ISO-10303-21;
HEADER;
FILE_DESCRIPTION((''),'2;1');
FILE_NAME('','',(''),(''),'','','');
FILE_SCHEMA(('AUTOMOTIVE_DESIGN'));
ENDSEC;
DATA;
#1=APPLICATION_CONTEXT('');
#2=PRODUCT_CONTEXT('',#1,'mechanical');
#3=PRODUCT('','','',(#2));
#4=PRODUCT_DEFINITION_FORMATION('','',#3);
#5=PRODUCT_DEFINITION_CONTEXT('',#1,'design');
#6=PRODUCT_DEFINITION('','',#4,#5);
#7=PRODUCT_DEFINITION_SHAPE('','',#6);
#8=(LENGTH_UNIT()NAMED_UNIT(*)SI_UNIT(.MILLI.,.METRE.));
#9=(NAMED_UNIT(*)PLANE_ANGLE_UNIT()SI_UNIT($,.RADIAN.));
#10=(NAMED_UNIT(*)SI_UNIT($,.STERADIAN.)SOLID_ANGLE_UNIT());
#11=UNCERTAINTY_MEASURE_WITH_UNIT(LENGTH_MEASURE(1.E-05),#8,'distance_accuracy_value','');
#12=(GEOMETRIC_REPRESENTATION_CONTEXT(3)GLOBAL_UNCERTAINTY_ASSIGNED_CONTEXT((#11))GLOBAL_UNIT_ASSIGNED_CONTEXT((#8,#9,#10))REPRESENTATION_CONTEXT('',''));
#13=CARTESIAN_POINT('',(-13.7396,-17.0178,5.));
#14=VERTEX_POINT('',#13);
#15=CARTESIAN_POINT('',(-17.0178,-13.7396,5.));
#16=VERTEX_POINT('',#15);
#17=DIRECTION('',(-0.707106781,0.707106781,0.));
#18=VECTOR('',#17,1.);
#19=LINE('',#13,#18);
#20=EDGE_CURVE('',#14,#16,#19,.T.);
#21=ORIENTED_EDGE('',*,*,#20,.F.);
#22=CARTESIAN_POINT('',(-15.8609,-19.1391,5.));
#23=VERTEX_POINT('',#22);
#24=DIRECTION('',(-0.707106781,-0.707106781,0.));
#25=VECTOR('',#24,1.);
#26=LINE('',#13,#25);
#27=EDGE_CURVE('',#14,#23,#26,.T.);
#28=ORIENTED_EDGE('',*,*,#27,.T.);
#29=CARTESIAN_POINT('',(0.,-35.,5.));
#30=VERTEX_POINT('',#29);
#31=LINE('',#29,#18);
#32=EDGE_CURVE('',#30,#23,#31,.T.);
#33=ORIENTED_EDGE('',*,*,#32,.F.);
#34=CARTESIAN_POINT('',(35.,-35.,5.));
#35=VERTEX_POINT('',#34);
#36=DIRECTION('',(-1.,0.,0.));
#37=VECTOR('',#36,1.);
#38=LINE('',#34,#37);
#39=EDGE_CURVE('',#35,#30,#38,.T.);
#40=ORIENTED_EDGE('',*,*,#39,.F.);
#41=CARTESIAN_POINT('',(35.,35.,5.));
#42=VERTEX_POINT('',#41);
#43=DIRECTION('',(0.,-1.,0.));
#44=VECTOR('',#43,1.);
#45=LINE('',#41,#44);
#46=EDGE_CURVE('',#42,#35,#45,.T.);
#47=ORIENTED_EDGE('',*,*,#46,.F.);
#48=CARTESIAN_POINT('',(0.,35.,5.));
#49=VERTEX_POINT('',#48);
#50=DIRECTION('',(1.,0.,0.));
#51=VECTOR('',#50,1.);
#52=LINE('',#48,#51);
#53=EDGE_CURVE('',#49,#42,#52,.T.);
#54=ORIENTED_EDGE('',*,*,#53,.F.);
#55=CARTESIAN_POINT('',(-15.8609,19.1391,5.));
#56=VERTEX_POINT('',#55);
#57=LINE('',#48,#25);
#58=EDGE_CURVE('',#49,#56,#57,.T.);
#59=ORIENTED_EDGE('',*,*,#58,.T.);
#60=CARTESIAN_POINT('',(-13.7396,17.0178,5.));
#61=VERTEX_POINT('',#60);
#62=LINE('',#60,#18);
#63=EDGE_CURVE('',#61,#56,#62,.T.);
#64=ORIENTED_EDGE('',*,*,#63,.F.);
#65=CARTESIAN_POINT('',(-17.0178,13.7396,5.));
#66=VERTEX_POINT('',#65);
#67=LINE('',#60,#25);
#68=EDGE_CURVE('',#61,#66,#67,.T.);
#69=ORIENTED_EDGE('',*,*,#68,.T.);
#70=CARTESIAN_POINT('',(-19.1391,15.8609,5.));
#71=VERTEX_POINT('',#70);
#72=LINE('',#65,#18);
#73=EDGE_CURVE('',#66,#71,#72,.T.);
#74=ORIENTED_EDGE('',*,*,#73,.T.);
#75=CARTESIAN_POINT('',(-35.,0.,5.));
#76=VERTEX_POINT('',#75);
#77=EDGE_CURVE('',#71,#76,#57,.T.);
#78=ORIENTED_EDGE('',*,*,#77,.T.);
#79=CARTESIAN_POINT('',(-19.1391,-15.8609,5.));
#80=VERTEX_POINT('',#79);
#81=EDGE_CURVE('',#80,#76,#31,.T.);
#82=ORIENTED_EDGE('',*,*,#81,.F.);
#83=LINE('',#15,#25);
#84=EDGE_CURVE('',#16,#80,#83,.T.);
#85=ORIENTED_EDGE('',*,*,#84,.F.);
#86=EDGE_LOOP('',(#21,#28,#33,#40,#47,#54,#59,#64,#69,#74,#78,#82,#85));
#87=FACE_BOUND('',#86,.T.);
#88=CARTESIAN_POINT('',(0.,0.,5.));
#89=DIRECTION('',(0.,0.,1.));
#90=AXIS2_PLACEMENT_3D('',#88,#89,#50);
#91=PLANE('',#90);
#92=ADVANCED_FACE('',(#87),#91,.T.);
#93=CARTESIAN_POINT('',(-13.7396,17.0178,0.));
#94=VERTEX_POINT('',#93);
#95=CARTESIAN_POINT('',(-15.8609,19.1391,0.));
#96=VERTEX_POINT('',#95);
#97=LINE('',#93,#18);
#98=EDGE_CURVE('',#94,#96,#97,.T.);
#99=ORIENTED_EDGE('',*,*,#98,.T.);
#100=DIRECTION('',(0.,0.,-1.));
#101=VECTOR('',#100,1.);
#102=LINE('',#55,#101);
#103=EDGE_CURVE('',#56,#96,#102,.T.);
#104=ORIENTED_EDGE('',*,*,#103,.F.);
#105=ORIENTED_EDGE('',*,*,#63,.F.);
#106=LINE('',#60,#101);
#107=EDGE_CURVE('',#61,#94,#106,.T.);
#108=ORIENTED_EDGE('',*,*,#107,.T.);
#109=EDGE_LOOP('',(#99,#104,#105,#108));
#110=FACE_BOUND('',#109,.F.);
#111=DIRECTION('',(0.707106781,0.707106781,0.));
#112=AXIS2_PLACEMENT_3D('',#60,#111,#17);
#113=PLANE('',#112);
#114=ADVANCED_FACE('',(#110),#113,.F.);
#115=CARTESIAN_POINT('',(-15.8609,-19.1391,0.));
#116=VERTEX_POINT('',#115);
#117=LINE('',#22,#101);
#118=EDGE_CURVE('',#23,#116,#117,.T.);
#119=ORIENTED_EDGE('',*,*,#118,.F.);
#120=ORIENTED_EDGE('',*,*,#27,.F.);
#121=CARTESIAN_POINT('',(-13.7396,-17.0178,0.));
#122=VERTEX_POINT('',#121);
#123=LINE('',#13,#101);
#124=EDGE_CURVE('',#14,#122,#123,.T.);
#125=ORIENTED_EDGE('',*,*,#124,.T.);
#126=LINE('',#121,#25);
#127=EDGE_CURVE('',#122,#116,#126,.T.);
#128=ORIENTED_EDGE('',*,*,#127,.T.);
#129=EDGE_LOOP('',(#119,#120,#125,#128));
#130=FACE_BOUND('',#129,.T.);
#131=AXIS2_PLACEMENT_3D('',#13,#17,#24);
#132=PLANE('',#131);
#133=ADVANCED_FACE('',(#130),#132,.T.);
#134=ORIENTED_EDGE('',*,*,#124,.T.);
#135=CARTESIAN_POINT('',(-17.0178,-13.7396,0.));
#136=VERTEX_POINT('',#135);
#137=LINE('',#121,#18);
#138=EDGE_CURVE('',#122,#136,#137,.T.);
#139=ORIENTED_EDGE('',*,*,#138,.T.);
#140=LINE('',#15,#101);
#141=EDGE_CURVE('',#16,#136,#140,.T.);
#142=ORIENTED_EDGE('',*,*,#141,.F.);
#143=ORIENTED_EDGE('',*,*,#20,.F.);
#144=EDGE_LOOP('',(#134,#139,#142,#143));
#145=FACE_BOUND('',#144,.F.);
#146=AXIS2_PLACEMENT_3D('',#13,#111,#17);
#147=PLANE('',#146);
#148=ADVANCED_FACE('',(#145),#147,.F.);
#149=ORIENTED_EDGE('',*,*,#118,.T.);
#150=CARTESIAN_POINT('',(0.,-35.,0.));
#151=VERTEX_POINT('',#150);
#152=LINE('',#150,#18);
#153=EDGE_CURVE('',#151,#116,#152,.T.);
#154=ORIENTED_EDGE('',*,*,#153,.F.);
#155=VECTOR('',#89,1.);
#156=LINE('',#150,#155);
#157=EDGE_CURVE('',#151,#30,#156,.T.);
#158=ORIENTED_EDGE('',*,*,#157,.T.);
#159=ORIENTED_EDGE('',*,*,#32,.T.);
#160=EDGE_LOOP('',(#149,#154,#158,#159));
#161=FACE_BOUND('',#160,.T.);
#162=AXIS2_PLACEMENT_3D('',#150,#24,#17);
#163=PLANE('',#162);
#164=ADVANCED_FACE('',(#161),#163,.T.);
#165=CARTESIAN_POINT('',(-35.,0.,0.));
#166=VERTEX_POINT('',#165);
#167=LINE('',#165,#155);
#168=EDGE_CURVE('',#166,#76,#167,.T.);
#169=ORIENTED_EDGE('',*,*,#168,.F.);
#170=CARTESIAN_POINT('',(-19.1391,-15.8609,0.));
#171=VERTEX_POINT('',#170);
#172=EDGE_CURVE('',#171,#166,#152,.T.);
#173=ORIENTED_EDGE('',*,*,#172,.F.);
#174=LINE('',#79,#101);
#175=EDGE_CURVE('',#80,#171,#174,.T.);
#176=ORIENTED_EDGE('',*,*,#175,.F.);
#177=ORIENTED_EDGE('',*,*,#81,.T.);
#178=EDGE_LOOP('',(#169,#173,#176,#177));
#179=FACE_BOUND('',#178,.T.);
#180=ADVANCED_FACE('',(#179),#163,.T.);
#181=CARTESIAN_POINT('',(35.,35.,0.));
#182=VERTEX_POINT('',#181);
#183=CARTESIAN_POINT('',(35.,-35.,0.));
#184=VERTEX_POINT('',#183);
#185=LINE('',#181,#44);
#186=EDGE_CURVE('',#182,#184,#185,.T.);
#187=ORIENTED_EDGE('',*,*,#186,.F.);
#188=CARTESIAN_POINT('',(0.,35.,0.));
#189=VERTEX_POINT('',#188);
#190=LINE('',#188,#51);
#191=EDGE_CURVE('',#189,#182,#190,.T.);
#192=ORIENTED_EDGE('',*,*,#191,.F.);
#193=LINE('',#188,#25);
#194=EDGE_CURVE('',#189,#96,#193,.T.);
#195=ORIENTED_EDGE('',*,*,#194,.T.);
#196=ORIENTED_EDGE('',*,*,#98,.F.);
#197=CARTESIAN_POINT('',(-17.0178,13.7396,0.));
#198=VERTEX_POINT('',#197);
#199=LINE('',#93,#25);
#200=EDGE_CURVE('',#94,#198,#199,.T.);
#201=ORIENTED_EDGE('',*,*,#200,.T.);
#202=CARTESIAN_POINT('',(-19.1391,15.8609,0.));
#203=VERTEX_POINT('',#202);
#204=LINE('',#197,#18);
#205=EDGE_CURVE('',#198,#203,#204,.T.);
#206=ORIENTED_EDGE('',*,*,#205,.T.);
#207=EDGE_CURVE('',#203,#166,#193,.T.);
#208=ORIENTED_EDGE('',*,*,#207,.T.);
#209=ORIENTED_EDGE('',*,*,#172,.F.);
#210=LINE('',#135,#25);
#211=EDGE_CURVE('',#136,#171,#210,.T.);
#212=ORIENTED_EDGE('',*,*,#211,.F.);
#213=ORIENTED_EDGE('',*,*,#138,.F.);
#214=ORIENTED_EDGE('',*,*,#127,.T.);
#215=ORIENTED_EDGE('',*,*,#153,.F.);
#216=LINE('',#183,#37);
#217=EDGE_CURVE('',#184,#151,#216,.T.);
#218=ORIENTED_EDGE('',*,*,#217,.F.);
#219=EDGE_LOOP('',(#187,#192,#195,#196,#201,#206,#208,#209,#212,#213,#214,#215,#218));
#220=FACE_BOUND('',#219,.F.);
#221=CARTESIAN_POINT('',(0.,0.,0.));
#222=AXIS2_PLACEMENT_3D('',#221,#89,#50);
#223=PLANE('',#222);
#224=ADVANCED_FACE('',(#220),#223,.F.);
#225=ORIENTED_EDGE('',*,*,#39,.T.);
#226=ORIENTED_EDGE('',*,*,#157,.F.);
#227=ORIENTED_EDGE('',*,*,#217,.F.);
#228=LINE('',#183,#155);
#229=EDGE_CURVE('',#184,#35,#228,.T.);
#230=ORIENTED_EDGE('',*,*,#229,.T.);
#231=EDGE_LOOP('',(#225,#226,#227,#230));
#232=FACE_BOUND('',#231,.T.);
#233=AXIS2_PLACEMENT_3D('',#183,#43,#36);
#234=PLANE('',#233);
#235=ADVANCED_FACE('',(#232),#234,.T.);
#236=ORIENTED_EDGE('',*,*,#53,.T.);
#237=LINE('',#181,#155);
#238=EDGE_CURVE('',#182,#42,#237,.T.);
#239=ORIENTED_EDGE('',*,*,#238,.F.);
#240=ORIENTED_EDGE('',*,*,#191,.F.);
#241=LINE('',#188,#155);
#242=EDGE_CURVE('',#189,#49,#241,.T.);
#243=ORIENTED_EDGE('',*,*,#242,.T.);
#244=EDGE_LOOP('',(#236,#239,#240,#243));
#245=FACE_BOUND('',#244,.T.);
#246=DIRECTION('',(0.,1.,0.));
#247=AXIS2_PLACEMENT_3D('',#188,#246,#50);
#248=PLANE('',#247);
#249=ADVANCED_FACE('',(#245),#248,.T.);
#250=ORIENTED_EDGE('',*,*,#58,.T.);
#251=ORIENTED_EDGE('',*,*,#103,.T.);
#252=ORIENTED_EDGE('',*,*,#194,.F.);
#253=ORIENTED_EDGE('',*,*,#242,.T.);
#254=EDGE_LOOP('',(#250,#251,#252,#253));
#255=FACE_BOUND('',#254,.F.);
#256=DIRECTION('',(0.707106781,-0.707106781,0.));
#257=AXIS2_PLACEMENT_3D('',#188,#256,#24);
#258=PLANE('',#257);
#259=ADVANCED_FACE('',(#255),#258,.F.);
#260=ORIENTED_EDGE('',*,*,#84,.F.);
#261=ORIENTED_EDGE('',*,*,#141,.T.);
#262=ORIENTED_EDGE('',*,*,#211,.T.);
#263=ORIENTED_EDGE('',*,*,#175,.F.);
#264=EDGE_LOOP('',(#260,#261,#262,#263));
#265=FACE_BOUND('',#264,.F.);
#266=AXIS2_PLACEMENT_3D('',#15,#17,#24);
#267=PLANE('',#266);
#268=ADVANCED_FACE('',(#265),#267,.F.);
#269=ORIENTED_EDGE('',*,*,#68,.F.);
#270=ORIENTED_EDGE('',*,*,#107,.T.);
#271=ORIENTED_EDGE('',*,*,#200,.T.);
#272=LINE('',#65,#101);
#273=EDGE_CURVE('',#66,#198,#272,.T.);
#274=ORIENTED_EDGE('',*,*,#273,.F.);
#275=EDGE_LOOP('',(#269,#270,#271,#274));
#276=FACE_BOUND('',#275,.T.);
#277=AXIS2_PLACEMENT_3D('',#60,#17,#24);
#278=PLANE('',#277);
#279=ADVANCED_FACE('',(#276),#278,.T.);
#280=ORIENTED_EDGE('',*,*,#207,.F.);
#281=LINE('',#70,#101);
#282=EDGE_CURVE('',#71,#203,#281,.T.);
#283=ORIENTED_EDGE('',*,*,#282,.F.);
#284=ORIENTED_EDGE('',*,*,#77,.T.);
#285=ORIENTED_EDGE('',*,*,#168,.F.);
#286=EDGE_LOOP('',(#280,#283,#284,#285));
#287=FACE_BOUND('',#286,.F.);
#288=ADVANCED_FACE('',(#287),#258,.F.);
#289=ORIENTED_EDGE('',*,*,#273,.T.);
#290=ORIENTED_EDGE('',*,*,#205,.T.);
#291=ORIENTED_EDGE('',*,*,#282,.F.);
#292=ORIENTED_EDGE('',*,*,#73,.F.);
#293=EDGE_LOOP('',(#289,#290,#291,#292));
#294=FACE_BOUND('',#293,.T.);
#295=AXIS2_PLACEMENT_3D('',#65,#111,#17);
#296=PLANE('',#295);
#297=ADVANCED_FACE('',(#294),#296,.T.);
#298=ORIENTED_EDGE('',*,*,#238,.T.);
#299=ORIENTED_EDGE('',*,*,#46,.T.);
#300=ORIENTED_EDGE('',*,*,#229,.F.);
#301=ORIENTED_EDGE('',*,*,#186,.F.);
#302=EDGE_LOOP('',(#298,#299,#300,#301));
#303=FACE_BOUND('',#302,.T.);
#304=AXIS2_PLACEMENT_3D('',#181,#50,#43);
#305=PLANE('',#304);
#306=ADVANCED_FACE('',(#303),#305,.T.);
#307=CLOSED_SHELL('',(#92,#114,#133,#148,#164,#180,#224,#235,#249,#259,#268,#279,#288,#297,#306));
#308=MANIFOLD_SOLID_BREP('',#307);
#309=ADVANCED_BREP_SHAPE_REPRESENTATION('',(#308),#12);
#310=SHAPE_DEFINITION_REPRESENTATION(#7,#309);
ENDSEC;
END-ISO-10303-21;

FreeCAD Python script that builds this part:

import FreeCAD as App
import Part
import Sketcher
from FreeCAD import Vector


def add_polygon(sketch, points):
    """Adds a closed chain of lines whose ends are joined by coincident constraints."""
    first, n = sketch.GeometryCount, len(points)
    for a, b in zip(points, points[1:] + points[:1]):
        sketch.addGeometry(Part.LineSegment(App.Vector(*a, 0), App.Vector(*b, 0)), False)
    for i in range(n):
        sketch.addConstraint(Sketcher.Constraint("Coincident", first + i, 2, first + (i + 1) % n, 1))

doc = App.newDocument("Part")
body = doc.addObject("PartDesign::Body", "Body")

# Sketch on XY plane
sketch1 = body.newObject("Sketcher::SketchObject", "Sketch")
sketch1.AttachmentSupport = (doc.getObject("XY_Plane"), [""])
sketch1.MapMode = "FlatFace"
add_polygon(sketch1, [(35, 35), (0, 35), (-35, 0), (0, -35), (35, -35)])  # lines 0-4
sketch1.addConstraint(Sketcher.Constraint("Horizontal", 0))
sketch1.addConstraint(Sketcher.Constraint("Horizontal", 3))
sketch1.addConstraint(Sketcher.Constraint("Vertical", 4))
sketch1.addConstraint(Sketcher.Constraint("Symmetric", 0, 2, 2, 2, -1, 1))
sketch1.addConstraint(Sketcher.Constraint("PointOnObject", 0, 2, -2))
sketch1.addConstraint(Sketcher.Constraint("PointOnObject", 1, 2, -1))
sketch1.addConstraint(Sketcher.Constraint("Perpendicular", 1, 2))
sketch1.addConstraint(Sketcher.Constraint("DistanceY", 4, 1, 4, 2, 70.0))
sketch1.addConstraint(Sketcher.Constraint("DistanceX", 1, 2, 3, 2, 70.0))
pad1 = body.newObject("PartDesign::Pad", "Pad")
pad1.Profile = sketch1
pad1.Length = 5

# Sketch on XY plane
sketch2 = body.newObject("Sketcher::SketchObject", "Sketch001")
sketch2.AttachmentSupport = (doc.getObject("XY_Plane"), [""])
sketch2.MapMode = "FlatFace"
sketch2.AttachmentOffset = App.Placement(Vector(0, 0, 5), App.Rotation())
add_polygon(sketch2, [(-13.7, 17), (-15.9, 19.1), (-19.1, 15.9), (-17, 13.7)])  # lines 0-3
add_polygon(sketch2, [(-17, -13.7), (-19.1, -15.9), (-15.9, -19.1), (-13.7, -17)])  # lines 4-7
sketch2.addConstraint(Sketcher.Constraint("Symmetric", 1, 2, 4, 2, -1))
sketch2.addConstraint(Sketcher.Constraint("Symmetric", 0, 2, 5, 2, -1))
sketch2.addConstraint(Sketcher.Constraint("Symmetric", 3, 2, 6, 2, -1))
sketch2.addConstraint(Sketcher.Constraint("Symmetric", 2, 2, 7, 2, -1))
sketch2.addConstraint(Sketcher.Constraint("Perpendicular", 0, 1))
sketch2.addConstraint(Sketcher.Constraint("Perpendicular", 1, 2))
sketch2.addConstraint(Sketcher.Constraint("Perpendicular", 2, 3))
sketch2.addConstraint(Sketcher.Constraint("Parallel", 3, 4))
sketch2.addConstraint(Sketcher.Constraint("Distance", 0, 3.0))
sketch2.addConstraint(Sketcher.Constraint("Distance", 1, 4.636))
sketch2.addConstraint(Sketcher.Constraint("DistanceY", 4, 2, 0, 2, 35.0))
sketch2.addConstraint(Sketcher.Constraint("DistanceX", 0, 2, -1, 1, 15.861))
pocket1 = body.newObject("PartDesign::Pocket", "Pocket")
pocket1.Profile = sketch2
pocket1.Length = 5

doc.recompute()
